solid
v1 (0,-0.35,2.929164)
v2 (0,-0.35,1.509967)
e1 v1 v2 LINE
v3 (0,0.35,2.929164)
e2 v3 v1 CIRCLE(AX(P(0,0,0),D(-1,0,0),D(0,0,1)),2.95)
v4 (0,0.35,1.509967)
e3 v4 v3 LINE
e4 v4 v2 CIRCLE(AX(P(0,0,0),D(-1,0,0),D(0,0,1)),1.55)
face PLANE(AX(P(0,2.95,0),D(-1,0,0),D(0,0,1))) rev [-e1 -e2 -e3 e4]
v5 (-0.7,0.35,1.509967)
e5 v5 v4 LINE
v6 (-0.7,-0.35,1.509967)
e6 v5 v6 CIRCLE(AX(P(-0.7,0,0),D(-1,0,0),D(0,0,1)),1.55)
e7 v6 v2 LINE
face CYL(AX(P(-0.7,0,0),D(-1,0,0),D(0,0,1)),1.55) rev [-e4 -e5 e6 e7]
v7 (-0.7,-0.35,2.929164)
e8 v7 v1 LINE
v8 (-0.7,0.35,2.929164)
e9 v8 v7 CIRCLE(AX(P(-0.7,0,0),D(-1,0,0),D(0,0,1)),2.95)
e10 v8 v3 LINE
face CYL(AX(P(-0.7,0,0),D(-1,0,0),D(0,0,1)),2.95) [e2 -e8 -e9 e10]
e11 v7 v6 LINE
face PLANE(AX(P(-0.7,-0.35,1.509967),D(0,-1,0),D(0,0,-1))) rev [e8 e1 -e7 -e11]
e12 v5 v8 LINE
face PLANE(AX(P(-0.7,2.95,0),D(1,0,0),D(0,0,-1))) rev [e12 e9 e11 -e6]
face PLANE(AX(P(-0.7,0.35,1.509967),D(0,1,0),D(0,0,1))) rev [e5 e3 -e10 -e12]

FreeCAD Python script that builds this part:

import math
import FreeCAD as App
import Part
import Sketcher

V = App.Vector


def add_polygon(sketch, points):
    """Adds a closed chain of lines whose ends are joined by coincident constraints."""
    first, n = sketch.GeometryCount, len(points)
    for a, b in zip(points, points[1:] + points[:1]):
        sketch.addGeometry(Part.LineSegment(App.Vector(*a, 0), App.Vector(*b, 0)), False)
    for i in range(n):
        sketch.addConstraint(Sketcher.Constraint("Coincident", first + i, 2, first + (i + 1) % n, 1))

doc = App.newDocument("Part")
params = doc.addObject("Spreadsheet::Sheet", "Params")
for row, (alias, value) in enumerate([
    ("sketch1_width", "0.7 mm"),
    ("sketch1_height", "1.4 mm"),
    ("revolution_angle", "360 deg"),
    ("sketch2_radius", "1.55 mm"),
    ("sketch2_radius2", "2.95 mm"),
], start=1):
    params.set(f"A{row}", alias)
    params.set(f"B{row}", "=" + value)
    params.setAlias(f"B{row}", alias)

body = doc.addObject("PartDesign::Body", "Body")

# Sketch on XY plane
sketch1 = body.newObject("Sketcher::SketchObject", "Sketch")
sketch1.AttachmentSupport = (doc.getObject("XY_Plane"), [""])
sketch1.MapMode = "FlatFace"
add_polygon(sketch1, [(-0.7, 3), (-0.7, 1.6), (0, 1.6), (0, 3)])  # lines 0-3
sketch1.addConstraint(Sketcher.Constraint("Vertical", 0))
sketch1.addConstraint(Sketcher.Constraint("Horizontal", 1))
sketch1.addConstraint(Sketcher.Constraint("Vertical", 2))
sketch1.addConstraint(Sketcher.Constraint("Horizontal", 3))
sketch1.addConstraint(Sketcher.Constraint("PointOnObject", 1, 2, -2))
sketch1.addConstraint(Sketcher.Constraint("DistanceX", 1, 1, 1, 2, 0.7))
sketch1.addConstraint(Sketcher.Constraint("DistanceY", 0, 2, 0, 1, 1.4))
sketch1.addConstraint(Sketcher.Constraint("DistanceY", -1, 1, 0, 2, 1.55))
sketch1.setExpression("Constraints[9]", "Params.sketch1_width")
sketch1.setExpression("Constraints[10]", "Params.sketch1_height")
revolution = body.newObject("PartDesign::Revolution", "Revolution")
revolution.Profile = sketch1
revolution.ReferenceAxis = (sketch1, ["H_Axis"])
revolution.setExpression("Angle", "Params.revolution_angle")

# Sketch on YZ plane
sketch2 = body.newObject("Sketcher::SketchObject", "Sketch001")
sketch2.AttachmentSupport = (doc.getObject("YZ_Plane"), [""])
sketch2.MapMode = "FlatFace"
sketch2.addGeometry(Part.LineSegment(V(-0.3, 2.9, 0), V(-0.3, 1.5, 0)), False)
sketch2.addGeometry(Part.ArcOfCircle(Part.Circle(V(0, 0, 0), V(0, 0, 1), 1.5), math.radians(77), math.radians(103)), False)
sketch2.addGeometry(Part.LineSegment(V(0.3, 1.5, 0), V(0.3, 2.9, 0)), False)
sketch2.addGeometry(Part.ArcOfCircle(Part.Circle(V(0, 0, 0), V(0, 0, 1), 2.9), math.radians(83.19), math.radians(96.81)), False)
sketch2.addConstraint(Sketcher.Constraint("Coincident", 0, 2, 1, 2))
sketch2.addConstraint(Sketcher.Constraint("Coincident", 1, 1, 2, 1))
sketch2.addConstraint(Sketcher.Constraint("Coincident", 2, 2, 3, 1))
sketch2.addConstraint(Sketcher.Constraint("Coincident", 3, 2, 0, 1))
sketch2.addConstraint(Sketcher.Constraint("Vertical", 0))
sketch2.addConstraint(Sketcher.Constraint("Vertical", 2))
sketch2.addConstraint(Sketcher.Constraint("Coincident", 1, 3, -1, 1))
sketch2.addConstraint(Sketcher.Constraint("Coincident", 3, 3, -1, 1))
sketch2.addConstraint(Sketcher.Constraint("Horizontal", 0, 2, 1, 1))
sketch2.addConstraint(Sketcher.Constraint("Radius", 1, 1.55))
sketch2.addConstraint(Sketcher.Constraint("Radius", 3, 2.95))
sketch2.addConstraint(Sketcher.Constraint("DistanceX", 0, 2, 1, 1, 0.7))
sketch2.setExpression("Constraints[9]", "Params.sketch2_radius")
sketch2.setExpression("Constraints[10]", "Params.sketch2_radius2")
pocket1 = body.newObject("PartDesign::Pocket", "Pocket")
pocket1.Profile = sketch2
pocket1.Type = "ThroughAll"

doc.recompute()
